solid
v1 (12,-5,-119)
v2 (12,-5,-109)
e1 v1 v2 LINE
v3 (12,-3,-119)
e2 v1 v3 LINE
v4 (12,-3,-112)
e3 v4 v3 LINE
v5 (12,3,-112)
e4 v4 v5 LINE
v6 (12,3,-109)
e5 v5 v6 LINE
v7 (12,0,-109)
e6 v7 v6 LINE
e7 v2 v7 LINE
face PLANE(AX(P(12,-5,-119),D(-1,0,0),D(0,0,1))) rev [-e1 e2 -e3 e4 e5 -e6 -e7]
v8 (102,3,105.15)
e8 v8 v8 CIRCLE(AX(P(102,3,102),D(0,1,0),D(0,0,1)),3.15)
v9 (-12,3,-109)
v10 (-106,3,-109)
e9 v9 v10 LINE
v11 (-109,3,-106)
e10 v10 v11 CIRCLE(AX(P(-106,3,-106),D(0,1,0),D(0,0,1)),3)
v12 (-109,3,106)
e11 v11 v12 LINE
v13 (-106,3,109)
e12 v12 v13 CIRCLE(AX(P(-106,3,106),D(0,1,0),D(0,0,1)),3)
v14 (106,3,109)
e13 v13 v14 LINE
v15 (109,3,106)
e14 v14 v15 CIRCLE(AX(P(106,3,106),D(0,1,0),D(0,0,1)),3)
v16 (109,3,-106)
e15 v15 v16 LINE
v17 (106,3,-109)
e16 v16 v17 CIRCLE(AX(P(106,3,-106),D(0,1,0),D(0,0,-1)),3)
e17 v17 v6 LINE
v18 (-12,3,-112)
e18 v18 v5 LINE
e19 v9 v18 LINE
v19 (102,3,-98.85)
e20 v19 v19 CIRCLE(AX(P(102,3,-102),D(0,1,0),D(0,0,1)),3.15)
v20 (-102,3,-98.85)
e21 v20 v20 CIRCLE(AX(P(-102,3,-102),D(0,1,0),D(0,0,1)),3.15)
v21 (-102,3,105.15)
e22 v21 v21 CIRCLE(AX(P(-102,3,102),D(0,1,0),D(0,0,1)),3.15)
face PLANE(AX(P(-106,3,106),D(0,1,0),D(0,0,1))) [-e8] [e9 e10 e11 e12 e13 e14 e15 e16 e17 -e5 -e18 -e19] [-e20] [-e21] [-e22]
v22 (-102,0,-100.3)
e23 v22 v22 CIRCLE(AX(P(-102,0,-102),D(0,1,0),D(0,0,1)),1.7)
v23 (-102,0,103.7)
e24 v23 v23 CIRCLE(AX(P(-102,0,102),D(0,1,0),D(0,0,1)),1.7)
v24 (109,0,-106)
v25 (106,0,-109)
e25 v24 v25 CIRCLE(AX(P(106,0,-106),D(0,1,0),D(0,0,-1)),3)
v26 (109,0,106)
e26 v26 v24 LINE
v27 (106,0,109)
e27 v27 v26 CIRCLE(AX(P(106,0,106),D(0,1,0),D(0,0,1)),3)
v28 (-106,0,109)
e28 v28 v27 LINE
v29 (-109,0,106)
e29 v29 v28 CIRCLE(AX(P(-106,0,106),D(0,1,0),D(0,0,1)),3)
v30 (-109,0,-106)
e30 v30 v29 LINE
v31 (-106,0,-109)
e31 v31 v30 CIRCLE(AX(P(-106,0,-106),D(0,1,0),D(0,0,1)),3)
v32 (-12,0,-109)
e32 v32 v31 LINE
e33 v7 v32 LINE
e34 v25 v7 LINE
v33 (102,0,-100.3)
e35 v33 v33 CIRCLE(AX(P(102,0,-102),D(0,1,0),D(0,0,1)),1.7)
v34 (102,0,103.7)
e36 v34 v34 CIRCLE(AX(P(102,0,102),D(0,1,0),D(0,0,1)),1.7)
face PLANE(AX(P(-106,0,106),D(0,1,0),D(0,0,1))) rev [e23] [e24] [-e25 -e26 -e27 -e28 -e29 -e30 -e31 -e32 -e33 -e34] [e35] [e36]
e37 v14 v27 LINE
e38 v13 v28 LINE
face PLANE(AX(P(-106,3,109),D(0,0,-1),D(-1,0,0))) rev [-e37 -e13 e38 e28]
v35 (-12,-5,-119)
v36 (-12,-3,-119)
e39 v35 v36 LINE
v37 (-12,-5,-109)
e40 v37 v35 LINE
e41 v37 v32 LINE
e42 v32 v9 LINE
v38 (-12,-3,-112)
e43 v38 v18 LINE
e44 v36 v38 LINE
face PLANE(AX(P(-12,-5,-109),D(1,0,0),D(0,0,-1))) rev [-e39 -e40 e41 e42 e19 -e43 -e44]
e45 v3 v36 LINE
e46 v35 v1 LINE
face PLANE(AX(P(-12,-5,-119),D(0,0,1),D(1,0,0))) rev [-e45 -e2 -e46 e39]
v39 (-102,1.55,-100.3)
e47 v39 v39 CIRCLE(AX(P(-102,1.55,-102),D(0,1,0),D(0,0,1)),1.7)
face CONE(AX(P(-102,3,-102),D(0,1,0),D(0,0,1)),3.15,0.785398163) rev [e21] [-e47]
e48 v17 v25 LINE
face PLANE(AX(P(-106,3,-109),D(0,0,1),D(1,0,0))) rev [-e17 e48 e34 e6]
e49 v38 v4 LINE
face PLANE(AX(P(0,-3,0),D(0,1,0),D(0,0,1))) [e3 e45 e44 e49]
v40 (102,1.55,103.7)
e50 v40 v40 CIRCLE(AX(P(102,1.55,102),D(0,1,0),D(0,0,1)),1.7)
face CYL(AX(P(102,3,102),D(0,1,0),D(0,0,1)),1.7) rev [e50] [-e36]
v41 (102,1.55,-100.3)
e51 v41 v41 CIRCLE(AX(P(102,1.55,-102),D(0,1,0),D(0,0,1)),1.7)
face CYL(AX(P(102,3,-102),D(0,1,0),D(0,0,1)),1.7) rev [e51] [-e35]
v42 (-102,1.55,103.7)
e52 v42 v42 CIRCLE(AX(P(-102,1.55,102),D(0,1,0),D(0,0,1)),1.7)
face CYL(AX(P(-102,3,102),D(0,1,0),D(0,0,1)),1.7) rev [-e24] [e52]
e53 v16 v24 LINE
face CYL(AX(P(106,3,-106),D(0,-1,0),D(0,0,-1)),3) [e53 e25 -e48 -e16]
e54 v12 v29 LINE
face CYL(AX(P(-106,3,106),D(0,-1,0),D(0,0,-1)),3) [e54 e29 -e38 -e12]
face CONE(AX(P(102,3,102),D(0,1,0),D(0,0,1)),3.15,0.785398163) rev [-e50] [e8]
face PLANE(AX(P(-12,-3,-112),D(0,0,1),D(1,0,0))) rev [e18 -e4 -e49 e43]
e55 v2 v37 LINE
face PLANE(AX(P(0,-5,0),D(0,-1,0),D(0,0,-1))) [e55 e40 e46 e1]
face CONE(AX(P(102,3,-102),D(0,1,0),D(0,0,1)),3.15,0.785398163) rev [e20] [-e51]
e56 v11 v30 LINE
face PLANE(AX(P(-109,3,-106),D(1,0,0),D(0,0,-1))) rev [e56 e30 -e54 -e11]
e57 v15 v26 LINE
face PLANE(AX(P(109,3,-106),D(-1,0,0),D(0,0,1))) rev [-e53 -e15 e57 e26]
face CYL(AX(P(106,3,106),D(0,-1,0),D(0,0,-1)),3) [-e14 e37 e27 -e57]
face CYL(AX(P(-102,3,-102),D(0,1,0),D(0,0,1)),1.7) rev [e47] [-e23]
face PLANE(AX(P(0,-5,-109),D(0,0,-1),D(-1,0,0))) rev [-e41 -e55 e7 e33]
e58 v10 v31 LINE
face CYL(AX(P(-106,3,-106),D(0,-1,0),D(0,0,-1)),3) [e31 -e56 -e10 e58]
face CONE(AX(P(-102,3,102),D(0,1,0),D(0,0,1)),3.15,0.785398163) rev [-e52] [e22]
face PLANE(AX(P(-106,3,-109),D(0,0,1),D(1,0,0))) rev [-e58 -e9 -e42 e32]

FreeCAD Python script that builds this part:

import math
import FreeCAD as App
import Part
import Sketcher

V = App.Vector
Q = App.Units.Quantity


def add_polygon(sketch, points):
    """Adds a closed chain of lines whose ends are joined by coincident constraints."""
    first, n = sketch.GeometryCount, len(points)
    for a, b in zip(points, points[1:] + points[:1]):
        sketch.addGeometry(Part.LineSegment(App.Vector(*a, 0), App.Vector(*b, 0)), False)
    for i in range(n):
        sketch.addConstraint(Sketcher.Constraint("Coincident", first + i, 2, first + (i + 1) % n, 1))

doc = App.newDocument("Part")
body = doc.addObject("PartDesign::Body", "Body")

# Sketch on XZ plane
sketch1 = body.newObject("Sketcher::SketchObject", "Sketch")
sketch1.AttachmentSupport = (doc.getObject("XZ_Plane"), [""])
sketch1.MapMode = "FlatFace"
sketch1.addGeometry(Part.LineSegment(V(106, -109, 0), V(-106, -109, 0)), False)
sketch1.addGeometry(Part.ArcOfCircle(Part.Circle(V(-106, -106, 0), V(0, 0, 1), 3), math.radians(180), math.radians(270)), False)
sketch1.addGeometry(Part.LineSegment(V(-109, -106, 0), V(-109, 106, 0)), False)
sketch1.addGeometry(Part.ArcOfCircle(Part.Circle(V(-106, 106, 0), V(0, 0, 1), 3), math.radians(90), math.radians(180)), False)
sketch1.addGeometry(Part.LineSegment(V(-106, 109, 0), V(106, 109, 0)), False)
sketch1.addGeometry(Part.ArcOfCircle(Part.Circle(V(106, 106, 0), V(0, 0, 1), 3), math.radians(0), math.radians(90)), False)
sketch1.addGeometry(Part.LineSegment(V(109, 106, 0), V(109, -106, 0)), False)
sketch1.addGeometry(Part.ArcOfCircle(Part.Circle(V(106, -106, 0), V(0, 0, 1), 3), math.radians(-90), math.radians(0)), False)
sketch1.addConstraint(Sketcher.Constraint("Tangent", 0, 2, 1, 2))
sketch1.addConstraint(Sketcher.Constraint("Tangent", 1, 1, 2, 1))
sketch1.addConstraint(Sketcher.Constraint("Tangent", 2, 2, 3, 2))
sketch1.addConstraint(Sketcher.Constraint("Tangent", 3, 1, 4, 1))
sketch1.addConstraint(Sketcher.Constraint("Tangent", 4, 2, 5, 2))
sketch1.addConstraint(Sketcher.Constraint("Tangent", 5, 1, 6, 1))
sketch1.addConstraint(Sketcher.Constraint("Tangent", 6, 2, 7, 2))
sketch1.addConstraint(Sketcher.Constraint("Tangent", 7, 1, 0, 1))
sketch1.addConstraint(Sketcher.Constraint("Horizontal", 0))
sketch1.addConstraint(Sketcher.Constraint("Vertical", 2))
sketch1.addConstraint(Sketcher.Constraint("Horizontal", 4))
sketch1.addConstraint(Sketcher.Constraint("Vertical", 6))
sketch1.addConstraint(Sketcher.Constraint("Equal", 1, 3))
sketch1.addConstraint(Sketcher.Constraint("Equal", 3, 5))
sketch1.addConstraint(Sketcher.Constraint("Equal", 5, 7))
sketch1.addConstraint(Sketcher.Constraint("Symmetric", 1, 3, 5, 3, -1, 1))
sketch1.addConstraint(Sketcher.Constraint("Equal", 4, 2))
sketch1.addConstraint(Sketcher.Constraint("Radius", 1, 3.0))
sketch1.addConstraint(Sketcher.Constraint("DistanceX", 0, 2, 0, 1, 212.0))
pad1 = body.newObject("PartDesign::Pad", "Pad")
pad1.Profile = sketch1
pad1.Length = 3
pad1.Reversed = True

# Sketch on YZ plane
sketch2 = body.newObject("Sketcher::SketchObject", "Sketch001")
sketch2.AttachmentSupport = (doc.getObject("YZ_Plane"), [""])
sketch2.MapMode = "FlatFace"
sketch2.AttachmentOffset = App.Placement(V(0, 0, -102), App.Rotation())
add_polygon(sketch2, [(0, -102), (3, -102), (3, -98.8), (1.6, -100.3), (0, -100.3)])  # lines 0-4
sketch2.addGeometry(Part.LineSegment(V(3, -102, 0), V(0, -102, 0)), True)  # axis
sketch2.addConstraint(Sketcher.Constraint("Horizontal", 0))
sketch2.addConstraint(Sketcher.Constraint("Vertical", 1))
sketch2.addConstraint(Sketcher.Constraint("Horizontal", 3))
sketch2.addConstraint(Sketcher.Constraint("Vertical", 4))
sketch2.addConstraint(Sketcher.Constraint("Horizontal", 5))
sketch2.addConstraint(Sketcher.Constraint("Coincident", 5, 1, 0, 2))
sketch2.addConstraint(Sketcher.Constraint("PointOnObject", 3, 2, -2))
sketch2.addConstraint(Sketcher.Constraint("PointOnObject", 5, 2, -2))
sketch2.addConstraint(Sketcher.Constraint("DistanceX", 0, 1, 0, 2, 3.0))
sketch2.addConstraint(Sketcher.Constraint("Angle", 2, Q("-135 deg")))
sketch2.addConstraint(Sketcher.Constraint("DistanceY", 4, 2, 4, 1, 1.7))
sketch2.addConstraint(Sketcher.Constraint("DistanceY", 0, 2, -1, 1, 102.0))
sketch2.addConstraint(Sketcher.Constraint("DistanceX", 3, 2, 3, 1, 1.55))
groove = body.newObject("PartDesign::Groove", "Groove")
groove.Profile = sketch2
groove.ReferenceAxis = (sketch2, ["Axis0"])
groove.Angle = 360
doc.recompute()

linearpattern = body.newObject("PartDesign::LinearPattern", "LinearPattern")
linearpattern.Originals = [groove]
linearpattern.Direction = (doc.getObject("Z_Axis"), [""])
linearpattern.Mode = "offset"
linearpattern.Offset = 204
linearpattern.Occurrences = 2
body.Tip = linearpattern
doc.recompute()

datumline = body.newObject("PartDesign::Line", "DatumLine")
datumline.Placement = App.Placement(V(0, 0, 0), App.Rotation(V(0, 0, 1), V(0.707106781, 0, 0.707106781)))
linearpattern2 = body.newObject("PartDesign::LinearPattern", "LinearPattern001")
linearpattern2.Originals = [groove]
linearpattern2.Direction = (datumline, [""])
linearpattern2.Mode = "offset"
linearpattern2.Offset = 288.499567
linearpattern2.Occurrences = 2
body.Tip = linearpattern2
doc.recompute()

linearpattern3 = body.newObject("PartDesign::LinearPattern", "LinearPattern002")
linearpattern3.Originals = [groove]
linearpattern3.Direction = (doc.getObject("X_Axis"), [""])
linearpattern3.Mode = "offset"
linearpattern3.Offset = 204
linearpattern3.Occurrences = 2
body.Tip = linearpattern3

# Sketch on XZ plane
sketch3 = body.newObject("Sketcher::SketchObject", "Sketch002")
sketch3.AttachmentSupport = (doc.getObject("XZ_Plane"), [""])
sketch3.MapMode = "FlatFace"
sketch3.AttachmentOffset = App.Placement(V(0, 0, -3), App.Rotation())
add_polygon(sketch3, [(-12, -109), (-12, -119), (12, -119), (12, -109)])  # lines 0-3
sketch3.addConstraint(Sketcher.Constraint("Vertical", 0))
sketch3.addConstraint(Sketcher.Constraint("Horizontal", 1))
sketch3.addConstraint(Sketcher.Constraint("Vertical", 2))
sketch3.addConstraint(Sketcher.Constraint("Horizontal", 3))
sketch3.addConstraint(Sketcher.Constraint("DistanceX", 1, 1, 1, 2, 24.0))
sketch3.addConstraint(Sketcher.Constraint("DistanceY", 0, 2, 0, 1, 10.0))
sketch3.addConstraint(Sketcher.Constraint("DistanceX", 0, 2, -1, 1, 12.0))
sketch3.addConstraint(Sketcher.Constraint("DistanceY", 0, 2, -1, 1, 119.0))
pad2 = body.newObject("PartDesign::Pad", "Pad001")
pad2.Profile = sketch3
pad2.Length = 8

# Sketch on XZ plane
sketch4 = body.newObject("Sketcher::SketchObject", "Sketch003")
sketch4.AttachmentSupport = (doc.getObject("XZ_Plane"), [""])
sketch4.MapMode = "FlatFace"
sketch4.AttachmentOffset = App.Placement(V(0, 0, -3), App.Rotation())
add_polygon(sketch4, [(-12, -119), (-12, -112), (12, -112), (12, -119)])  # lines 0-3
sketch4.addConstraint(Sketcher.Constraint("Vertical", 0))
sketch4.addConstraint(Sketcher.Constraint("Horizontal", 1))
sketch4.addConstraint(Sketcher.Constraint("Vertical", 2))
sketch4.addConstraint(Sketcher.Constraint("Horizontal", 3))
sketch4.addConstraint(Sketcher.Constraint("DistanceX", 1, 1, 1, 2, 24.0))
sketch4.addConstraint(Sketcher.Constraint("DistanceY", 0, 1, 0, 2, 7.0))
sketch4.addConstraint(Sketcher.Constraint("DistanceX", 0, 2, -1, 1, 12.0))
sketch4.addConstraint(Sketcher.Constraint("DistanceY", 0, 2, -1, 1, 112.0))
pocket1 = body.newObject("PartDesign::Pocket", "Pocket")
pocket1.Profile = sketch4
pocket1.Length = 6
pocket1.Reversed = True

doc.recompute()
